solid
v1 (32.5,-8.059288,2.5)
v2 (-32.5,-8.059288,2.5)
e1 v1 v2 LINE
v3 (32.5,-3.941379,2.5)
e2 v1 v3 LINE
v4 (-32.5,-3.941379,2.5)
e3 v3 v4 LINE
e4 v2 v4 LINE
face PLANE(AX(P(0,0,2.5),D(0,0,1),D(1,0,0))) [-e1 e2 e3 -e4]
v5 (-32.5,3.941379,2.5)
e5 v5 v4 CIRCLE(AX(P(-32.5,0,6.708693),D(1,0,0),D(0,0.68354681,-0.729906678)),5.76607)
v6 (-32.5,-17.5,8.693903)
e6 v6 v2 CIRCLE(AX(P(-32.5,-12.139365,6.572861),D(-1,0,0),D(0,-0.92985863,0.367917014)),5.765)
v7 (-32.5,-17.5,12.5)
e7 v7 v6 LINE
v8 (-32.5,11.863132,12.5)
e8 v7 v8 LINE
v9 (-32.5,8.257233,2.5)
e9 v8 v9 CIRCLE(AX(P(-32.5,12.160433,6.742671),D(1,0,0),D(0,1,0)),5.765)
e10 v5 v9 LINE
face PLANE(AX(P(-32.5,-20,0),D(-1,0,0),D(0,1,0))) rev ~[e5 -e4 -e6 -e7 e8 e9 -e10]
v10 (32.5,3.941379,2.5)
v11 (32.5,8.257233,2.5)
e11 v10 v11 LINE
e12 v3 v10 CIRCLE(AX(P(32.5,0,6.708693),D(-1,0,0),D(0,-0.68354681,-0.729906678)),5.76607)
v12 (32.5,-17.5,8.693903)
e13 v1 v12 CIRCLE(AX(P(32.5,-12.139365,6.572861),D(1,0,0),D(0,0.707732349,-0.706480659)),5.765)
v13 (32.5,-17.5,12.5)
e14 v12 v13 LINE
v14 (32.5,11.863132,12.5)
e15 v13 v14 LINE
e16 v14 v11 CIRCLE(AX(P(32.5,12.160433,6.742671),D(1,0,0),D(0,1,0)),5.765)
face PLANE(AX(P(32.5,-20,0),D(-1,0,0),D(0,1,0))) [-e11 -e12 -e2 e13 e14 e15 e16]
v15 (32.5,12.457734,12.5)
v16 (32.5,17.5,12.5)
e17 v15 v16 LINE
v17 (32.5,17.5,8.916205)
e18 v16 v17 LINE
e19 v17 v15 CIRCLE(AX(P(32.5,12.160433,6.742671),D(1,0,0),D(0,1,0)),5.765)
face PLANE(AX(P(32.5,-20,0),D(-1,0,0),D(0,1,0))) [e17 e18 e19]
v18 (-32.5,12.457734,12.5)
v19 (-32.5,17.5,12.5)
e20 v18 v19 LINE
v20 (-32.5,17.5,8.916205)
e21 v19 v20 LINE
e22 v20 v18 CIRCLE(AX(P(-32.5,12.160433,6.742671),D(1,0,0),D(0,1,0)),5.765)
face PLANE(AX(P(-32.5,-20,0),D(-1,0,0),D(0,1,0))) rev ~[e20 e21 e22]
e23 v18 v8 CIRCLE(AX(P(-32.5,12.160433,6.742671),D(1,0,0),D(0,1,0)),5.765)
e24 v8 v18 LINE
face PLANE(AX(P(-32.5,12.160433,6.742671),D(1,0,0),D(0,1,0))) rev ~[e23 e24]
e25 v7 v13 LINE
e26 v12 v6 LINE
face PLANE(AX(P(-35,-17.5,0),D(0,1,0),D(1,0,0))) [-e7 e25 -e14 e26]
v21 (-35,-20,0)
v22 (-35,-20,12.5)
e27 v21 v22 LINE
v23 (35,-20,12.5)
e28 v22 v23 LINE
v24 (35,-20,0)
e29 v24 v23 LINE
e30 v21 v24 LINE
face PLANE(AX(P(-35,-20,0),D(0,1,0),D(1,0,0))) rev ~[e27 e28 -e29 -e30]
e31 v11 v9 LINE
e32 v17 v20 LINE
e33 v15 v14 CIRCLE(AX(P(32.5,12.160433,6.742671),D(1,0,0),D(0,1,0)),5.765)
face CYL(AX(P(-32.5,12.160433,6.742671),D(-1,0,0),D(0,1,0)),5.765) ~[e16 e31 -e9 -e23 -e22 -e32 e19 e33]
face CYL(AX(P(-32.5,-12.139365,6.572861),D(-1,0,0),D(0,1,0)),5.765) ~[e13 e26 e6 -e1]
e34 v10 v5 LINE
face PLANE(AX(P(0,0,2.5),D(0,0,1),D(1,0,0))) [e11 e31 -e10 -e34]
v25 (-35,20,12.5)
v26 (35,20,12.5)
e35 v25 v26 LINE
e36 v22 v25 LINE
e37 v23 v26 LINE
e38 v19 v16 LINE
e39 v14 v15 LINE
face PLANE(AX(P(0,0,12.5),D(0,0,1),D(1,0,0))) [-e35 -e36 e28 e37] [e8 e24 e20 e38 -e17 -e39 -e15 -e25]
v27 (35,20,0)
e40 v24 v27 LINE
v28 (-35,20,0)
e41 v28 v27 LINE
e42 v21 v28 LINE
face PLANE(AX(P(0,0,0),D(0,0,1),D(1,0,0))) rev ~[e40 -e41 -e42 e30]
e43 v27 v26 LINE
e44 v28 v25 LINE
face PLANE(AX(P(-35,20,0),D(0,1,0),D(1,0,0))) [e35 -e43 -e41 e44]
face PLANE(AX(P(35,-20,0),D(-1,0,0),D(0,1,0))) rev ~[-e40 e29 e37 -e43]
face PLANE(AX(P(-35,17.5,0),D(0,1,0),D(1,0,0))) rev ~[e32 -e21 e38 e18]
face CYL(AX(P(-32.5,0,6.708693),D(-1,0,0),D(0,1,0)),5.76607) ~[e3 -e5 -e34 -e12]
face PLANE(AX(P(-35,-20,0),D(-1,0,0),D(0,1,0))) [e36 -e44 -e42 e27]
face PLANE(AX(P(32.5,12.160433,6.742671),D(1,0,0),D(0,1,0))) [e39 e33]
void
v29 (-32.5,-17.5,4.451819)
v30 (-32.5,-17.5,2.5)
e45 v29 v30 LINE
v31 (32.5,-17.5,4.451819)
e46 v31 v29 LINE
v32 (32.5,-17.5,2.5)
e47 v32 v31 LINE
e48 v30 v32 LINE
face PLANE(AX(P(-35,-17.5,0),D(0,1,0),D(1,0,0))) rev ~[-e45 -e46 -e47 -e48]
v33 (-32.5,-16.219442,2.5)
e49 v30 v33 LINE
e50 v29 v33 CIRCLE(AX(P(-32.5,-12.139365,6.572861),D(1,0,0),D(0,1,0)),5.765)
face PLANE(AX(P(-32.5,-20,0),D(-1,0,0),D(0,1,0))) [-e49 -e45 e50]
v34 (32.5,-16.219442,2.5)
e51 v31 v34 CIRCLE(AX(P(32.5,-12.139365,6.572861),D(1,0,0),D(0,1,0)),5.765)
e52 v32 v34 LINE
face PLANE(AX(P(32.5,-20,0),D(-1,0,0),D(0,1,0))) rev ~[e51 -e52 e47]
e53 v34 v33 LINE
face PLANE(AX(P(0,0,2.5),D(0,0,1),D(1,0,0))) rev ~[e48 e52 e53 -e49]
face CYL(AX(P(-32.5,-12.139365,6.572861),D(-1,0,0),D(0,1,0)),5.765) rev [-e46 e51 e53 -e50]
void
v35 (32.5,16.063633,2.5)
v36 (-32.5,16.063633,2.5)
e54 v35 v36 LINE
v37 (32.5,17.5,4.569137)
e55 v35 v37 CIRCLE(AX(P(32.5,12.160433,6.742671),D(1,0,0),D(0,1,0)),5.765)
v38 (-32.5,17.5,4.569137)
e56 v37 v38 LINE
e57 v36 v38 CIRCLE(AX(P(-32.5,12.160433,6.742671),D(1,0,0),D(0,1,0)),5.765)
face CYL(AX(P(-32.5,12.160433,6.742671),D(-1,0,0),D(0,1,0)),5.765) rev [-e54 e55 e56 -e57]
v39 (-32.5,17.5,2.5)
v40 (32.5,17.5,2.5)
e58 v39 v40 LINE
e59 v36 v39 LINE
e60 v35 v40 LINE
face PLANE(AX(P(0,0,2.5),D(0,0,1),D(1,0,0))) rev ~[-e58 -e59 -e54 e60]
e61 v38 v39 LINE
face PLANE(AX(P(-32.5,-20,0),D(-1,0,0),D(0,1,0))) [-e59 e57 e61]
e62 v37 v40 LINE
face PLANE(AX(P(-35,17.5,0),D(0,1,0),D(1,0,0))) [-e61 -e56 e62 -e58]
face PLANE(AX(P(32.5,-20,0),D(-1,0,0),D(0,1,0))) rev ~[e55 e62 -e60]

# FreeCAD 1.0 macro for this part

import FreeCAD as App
import Part
import Sketcher
Q = App.Units.Quantity


def faces_at(feature, points):
    """Names of the faces that lie closest to the given points."""
    faces = feature.Shape.Faces
    near = lambda p: min(range(len(faces)), key=lambda i: faces[i].distToShape(Part.Vertex(*p))[0])
    return sorted({f"Face{near(p) + 1}" for p in points})


def add_polygon(sketch, points):
    """Adds a closed chain of lines whose ends are joined by coincident constraints."""
    first, n = sketch.GeometryCount, len(points)
    for a, b in zip(points, points[1:] + points[:1]):
        sketch.addGeometry(Part.LineSegment(App.Vector(*a, 0), App.Vector(*b, 0)), False)
    for i in range(n):
        sketch.addConstraint(Sketcher.Constraint("Coincident", first + i, 2, first + (i + 1) % n, 1))

doc = App.newDocument("Part")
params = doc.addObject("Spreadsheet::Sheet", "Params")
for row, (alias, value) in enumerate([
    ("sketch1_width", "70 mm"),
    ("sketch1_height", "40 mm"),
    ("pad1_length", "12.5 mm"),
    ("thickness_wall", "2.5 mm"),
    ("sketch2_diameter", "11.53 mm"),
    ("pad2_length", "65 mm"),
], start=1):
    params.set(f"A{row}", alias)
    params.set(f"B{row}", "=" + value)
    params.setAlias(f"B{row}", alias)

body = doc.addObject("PartDesign::Body", "Body")

sketch1 = body.newObject("Sketcher::SketchObject", "Sketch")
sketch1.AttachmentSupport = (doc.getObject("XY_Plane"), [""])
sketch1.MapMode = "FlatFace"
add_polygon(sketch1, [(-35, 20), (-35, -20), (35, -20), (35, 20)])
sketch1.addConstraint(Sketcher.Constraint("Vertical", 0))
sketch1.addConstraint(Sketcher.Constraint("Horizontal", 1))
sketch1.addConstraint(Sketcher.Constraint("Vertical", 2))
sketch1.addConstraint(Sketcher.Constraint("Horizontal", 3))
sketch1.addConstraint(Sketcher.Constraint("Symmetric", 0, 2, 2, 2, -1, 1))
sketch1.addConstraint(Sketcher.Constraint("DistanceX", 1, 1, 1, 2, Q("70 mm")))
sketch1.addConstraint(Sketcher.Constraint("DistanceY", 0, 2, 0, 1, Q("40 mm")))
sketch1.setExpression("Constraints[9]", "Params.sketch1_width")
sketch1.setExpression("Constraints[10]", "Params.sketch1_height")
pad1 = body.newObject("PartDesign::Pad", "Pad")
pad1.Profile = sketch1
pad1.setExpression("Length", "Params.pad1_length")
doc.recompute()

thickness = body.newObject("PartDesign::Thickness", "Thickness")
thickness.Base = (pad1, faces_at(pad1, [(0, 0, 12.5)]))
thickness.setExpression("Value", "Params.thickness_wall")
thickness.Reversed = True
thickness.Join = "Arc"

sketch2 = body.newObject("Sketcher::SketchObject", "Sketch001")
sketch2.AttachmentSupport = (doc.getObject("YZ_Plane"), [""])
sketch2.MapMode = "FlatFace"
sketch2.AttachmentOffset = App.Placement(App.Vector(0, 0, -32.5), App.Rotation())
sketch2.addGeometry(Part.Circle(App.Vector(0, 7, 0), App.Vector(0, 0, 1), 6), False)
sketch2.addGeometry(Part.Circle(App.Vector(12, 7, 0), App.Vector(0, 0, 1), 6), False)
sketch2.addGeometry(Part.Circle(App.Vector(-12, 7, 0), App.Vector(0, 0, 1), 6), False)
sketch2.addConstraint(Sketcher.Constraint("Equal", 1, 2))
sketch2.addConstraint(Sketcher.Constraint("PointOnObject", 0, 3, -2))
sketch2.addConstraint(Sketcher.Constraint("Diameter", 1, Q("11.53 mm")))
sketch2.addConstraint(Sketcher.Constraint("Diameter", 0, Q("11.53214 mm")))
sketch2.addConstraint(Sketcher.Constraint("DistanceY", -1, 1, 1, 3, Q("6.742671 mm")))
sketch2.addConstraint(Sketcher.Constraint("DistanceY", -1, 1, 2, 3, Q("6.572861 mm")))
sketch2.addConstraint(Sketcher.Constraint("DistanceY", -1, 1, 0, 3, Q("6.708693 mm")))
sketch2.addConstraint(Sketcher.Constraint("DistanceX", -1, 1, 1, 3, Q("12.160433 mm")))
sketch2.addConstraint(Sketcher.Constraint("DistanceX", 2, 3, -1, 1, Q("12.139365 mm")))
sketch2.setExpression("Constraints[2]", "Params.sketch2_diameter")
pad2 = body.newObject("PartDesign::Pad", "Pad001")
pad2.Profile = sketch2
pad2.setExpression("Length", "Params.pad2_length")

doc.recompute()
